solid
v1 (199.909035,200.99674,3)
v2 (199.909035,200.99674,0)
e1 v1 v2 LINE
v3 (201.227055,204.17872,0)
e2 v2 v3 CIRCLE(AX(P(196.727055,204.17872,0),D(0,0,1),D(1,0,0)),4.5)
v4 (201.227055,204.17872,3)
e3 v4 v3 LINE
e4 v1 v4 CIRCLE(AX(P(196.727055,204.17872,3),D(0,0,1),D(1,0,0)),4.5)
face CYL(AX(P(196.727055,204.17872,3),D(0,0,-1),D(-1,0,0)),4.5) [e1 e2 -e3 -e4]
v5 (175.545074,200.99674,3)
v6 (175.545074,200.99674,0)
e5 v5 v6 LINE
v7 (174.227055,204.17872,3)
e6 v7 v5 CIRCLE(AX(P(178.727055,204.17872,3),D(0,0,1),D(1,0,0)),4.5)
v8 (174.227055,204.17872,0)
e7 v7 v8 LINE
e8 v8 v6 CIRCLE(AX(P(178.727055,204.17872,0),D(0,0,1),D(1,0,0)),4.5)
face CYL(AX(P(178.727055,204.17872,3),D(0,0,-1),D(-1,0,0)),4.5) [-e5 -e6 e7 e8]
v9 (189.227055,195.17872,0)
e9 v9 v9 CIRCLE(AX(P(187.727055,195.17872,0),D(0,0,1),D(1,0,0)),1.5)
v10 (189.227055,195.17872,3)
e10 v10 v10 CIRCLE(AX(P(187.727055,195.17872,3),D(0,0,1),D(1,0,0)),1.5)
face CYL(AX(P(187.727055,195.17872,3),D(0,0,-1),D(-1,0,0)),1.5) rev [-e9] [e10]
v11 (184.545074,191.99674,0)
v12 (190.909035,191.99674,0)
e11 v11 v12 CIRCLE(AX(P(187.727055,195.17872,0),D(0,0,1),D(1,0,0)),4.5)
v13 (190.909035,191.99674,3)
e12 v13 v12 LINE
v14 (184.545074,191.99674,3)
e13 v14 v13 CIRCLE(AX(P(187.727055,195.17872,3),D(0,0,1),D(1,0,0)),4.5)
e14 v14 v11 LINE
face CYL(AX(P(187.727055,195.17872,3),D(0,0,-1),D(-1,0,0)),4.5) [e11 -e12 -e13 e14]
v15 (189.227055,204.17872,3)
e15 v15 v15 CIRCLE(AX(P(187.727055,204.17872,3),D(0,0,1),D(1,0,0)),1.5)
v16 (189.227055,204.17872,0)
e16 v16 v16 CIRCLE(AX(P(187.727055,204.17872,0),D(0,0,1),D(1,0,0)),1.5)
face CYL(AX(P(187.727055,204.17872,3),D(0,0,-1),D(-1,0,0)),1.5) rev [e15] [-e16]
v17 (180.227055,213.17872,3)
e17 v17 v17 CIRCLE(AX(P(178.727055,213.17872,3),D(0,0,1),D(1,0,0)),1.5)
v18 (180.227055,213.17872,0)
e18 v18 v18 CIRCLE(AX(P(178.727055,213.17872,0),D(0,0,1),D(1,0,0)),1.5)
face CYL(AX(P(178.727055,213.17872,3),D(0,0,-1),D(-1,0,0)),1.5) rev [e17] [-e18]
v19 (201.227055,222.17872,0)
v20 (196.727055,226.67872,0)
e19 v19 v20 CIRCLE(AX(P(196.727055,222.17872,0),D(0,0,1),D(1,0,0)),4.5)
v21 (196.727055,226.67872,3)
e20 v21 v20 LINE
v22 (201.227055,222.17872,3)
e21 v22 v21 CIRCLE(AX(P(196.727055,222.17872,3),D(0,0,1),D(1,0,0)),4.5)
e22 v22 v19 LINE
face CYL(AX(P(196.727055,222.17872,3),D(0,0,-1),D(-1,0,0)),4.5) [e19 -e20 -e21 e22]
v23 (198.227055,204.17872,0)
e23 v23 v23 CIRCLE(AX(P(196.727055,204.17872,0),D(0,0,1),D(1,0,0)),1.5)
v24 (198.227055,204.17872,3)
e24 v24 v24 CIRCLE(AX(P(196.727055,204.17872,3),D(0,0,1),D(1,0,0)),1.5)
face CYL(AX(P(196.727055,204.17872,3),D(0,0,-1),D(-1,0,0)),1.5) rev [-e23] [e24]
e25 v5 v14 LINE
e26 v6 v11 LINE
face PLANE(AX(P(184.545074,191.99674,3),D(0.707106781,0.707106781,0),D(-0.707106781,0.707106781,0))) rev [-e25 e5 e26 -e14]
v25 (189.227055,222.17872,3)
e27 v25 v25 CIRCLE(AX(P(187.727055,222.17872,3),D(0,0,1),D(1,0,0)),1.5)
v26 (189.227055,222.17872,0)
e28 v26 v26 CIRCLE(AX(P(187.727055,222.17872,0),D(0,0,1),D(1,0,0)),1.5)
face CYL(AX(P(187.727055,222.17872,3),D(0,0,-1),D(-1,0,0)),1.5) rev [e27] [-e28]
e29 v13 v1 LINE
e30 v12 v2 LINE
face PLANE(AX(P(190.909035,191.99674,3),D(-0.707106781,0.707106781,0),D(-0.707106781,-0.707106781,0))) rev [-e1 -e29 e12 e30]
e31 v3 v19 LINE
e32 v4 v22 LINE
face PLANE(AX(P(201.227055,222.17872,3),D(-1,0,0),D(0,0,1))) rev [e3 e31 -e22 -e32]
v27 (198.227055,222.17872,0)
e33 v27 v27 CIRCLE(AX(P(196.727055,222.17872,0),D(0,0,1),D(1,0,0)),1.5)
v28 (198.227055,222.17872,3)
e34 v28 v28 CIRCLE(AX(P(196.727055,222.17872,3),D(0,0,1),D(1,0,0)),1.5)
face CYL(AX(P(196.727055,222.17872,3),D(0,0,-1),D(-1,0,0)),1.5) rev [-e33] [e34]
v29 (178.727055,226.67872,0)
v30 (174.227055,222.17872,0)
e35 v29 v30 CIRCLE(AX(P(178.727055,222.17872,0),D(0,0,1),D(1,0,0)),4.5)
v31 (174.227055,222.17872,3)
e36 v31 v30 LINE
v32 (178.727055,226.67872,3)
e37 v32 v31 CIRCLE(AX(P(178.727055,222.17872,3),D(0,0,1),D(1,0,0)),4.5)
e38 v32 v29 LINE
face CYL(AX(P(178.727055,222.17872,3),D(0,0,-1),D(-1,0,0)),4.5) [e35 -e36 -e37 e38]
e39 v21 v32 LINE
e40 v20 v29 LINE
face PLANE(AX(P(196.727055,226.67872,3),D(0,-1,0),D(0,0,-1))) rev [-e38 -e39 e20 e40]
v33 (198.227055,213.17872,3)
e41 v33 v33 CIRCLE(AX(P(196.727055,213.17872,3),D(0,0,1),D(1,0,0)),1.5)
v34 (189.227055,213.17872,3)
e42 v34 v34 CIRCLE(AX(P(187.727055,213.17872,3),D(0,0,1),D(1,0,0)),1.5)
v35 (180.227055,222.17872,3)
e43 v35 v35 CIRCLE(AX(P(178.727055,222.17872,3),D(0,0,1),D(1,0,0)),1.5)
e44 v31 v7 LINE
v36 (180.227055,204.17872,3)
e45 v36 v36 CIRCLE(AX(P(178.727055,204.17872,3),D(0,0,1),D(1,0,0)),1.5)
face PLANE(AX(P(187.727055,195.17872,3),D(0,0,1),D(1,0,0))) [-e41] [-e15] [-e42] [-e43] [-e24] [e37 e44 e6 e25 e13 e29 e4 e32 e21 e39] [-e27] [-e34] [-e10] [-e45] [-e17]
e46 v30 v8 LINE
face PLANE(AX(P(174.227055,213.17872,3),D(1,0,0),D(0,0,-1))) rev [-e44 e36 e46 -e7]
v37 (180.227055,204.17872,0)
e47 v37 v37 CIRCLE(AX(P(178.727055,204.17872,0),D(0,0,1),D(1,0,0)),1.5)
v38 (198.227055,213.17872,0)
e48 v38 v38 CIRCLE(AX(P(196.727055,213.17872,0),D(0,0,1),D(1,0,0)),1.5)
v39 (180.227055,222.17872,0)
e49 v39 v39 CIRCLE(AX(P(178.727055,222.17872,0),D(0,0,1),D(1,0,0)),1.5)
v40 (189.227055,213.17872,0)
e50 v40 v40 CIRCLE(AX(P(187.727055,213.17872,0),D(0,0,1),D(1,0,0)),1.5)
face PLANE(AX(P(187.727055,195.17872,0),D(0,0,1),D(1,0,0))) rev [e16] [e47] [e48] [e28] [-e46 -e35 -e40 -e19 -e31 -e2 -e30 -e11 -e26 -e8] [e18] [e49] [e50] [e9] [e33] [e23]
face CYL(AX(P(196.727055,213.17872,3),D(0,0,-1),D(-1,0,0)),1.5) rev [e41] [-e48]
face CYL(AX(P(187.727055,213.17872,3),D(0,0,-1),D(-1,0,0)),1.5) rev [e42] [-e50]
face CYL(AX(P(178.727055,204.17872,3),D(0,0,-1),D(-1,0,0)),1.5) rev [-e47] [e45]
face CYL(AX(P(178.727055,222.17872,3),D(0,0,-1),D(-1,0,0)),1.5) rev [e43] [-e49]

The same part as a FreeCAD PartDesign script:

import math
import FreeCAD as App
import Part
import Sketcher
from FreeCAD import Vector

doc = App.newDocument("Part")
body = doc.addObject("PartDesign::Body", "Body")

sketch1 = doc.addObject("Sketcher::SketchObject", "Sketch")
body.addObject(sketch1)
sketch1.AttachmentSupport = (doc.XY_Plane, [""])
sketch1.MapMode = "FlatFace"
sketch1.addGeometry(Part.ArcOfCircle(Part.Circle(Vector(178.7, 204.2, 0), Vector(0, 0, 1), 4.5), math.radians(180), math.radians(225)), False)
sketch1.addGeometry(Part.LineSegment(Vector(175.5, 201, 0), Vector(184.5, 192, 0)), False)
sketch1.addGeometry(Part.ArcOfCircle(Part.Circle(Vector(187.7, 195.2, 0), Vector(0, 0, 1), 4.5), math.radians(-135), math.radians(-45)), False)
sketch1.addGeometry(Part.LineSegment(Vector(190.9, 192, 0), Vector(199.9, 201, 0)), False)
sketch1.addGeometry(Part.ArcOfCircle(Part.Circle(Vector(196.7, 204.2, 0), Vector(0, 0, 1), 4.5), math.radians(-45), math.radians(0)), False)
sketch1.addGeometry(Part.LineSegment(Vector(201.2, 204.2, 0), Vector(201.2, 222.2, 0)), False)
sketch1.addGeometry(Part.ArcOfCircle(Part.Circle(Vector(196.7, 222.2, 0), Vector(0, 0, 1), 4.5), math.radians(0), math.radians(90)), False)
sketch1.addGeometry(Part.LineSegment(Vector(196.7, 226.7, 0), Vector(178.7, 226.7, 0)), False)
sketch1.addGeometry(Part.ArcOfCircle(Part.Circle(Vector(178.7, 222.2, 0), Vector(0, 0, 1), 4.5), math.radians(90), math.radians(180)), False)
sketch1.addGeometry(Part.LineSegment(Vector(174.2, 222.2, 0), Vector(174.2, 204.2, 0)), False)
sketch1.addGeometry(Part.Circle(Vector(178.7, 204.2, 0), Vector(0, 0, 1), 1.5), False)
sketch1.addGeometry(Part.Circle(Vector(187.7, 195.2, 0), Vector(0, 0, 1), 1.5), False)
sketch1.addGeometry(Part.Circle(Vector(187.7, 204.2, 0), Vector(0, 0, 1), 1.5), False)
sketch1.addGeometry(Part.Circle(Vector(196.7, 204.2, 0), Vector(0, 0, 1), 1.5), False)
sketch1.addGeometry(Part.Circle(Vector(178.7, 213.2, 0), Vector(0, 0, 1), 1.5), False)
sketch1.addGeometry(Part.Circle(Vector(178.7, 222.2, 0), Vector(0, 0, 1), 1.5), False)
sketch1.addGeometry(Part.Circle(Vector(187.7, 213.2, 0), Vector(0, 0, 1), 1.5), False)
sketch1.addGeometry(Part.Circle(Vector(196.7, 213.2, 0), Vector(0, 0, 1), 1.5), False)
sketch1.addGeometry(Part.Circle(Vector(187.7, 222.2, 0), Vector(0, 0, 1), 1.5), False)
sketch1.addGeometry(Part.Circle(Vector(196.7, 222.2, 0), Vector(0, 0, 1), 1.5), False)
sketch1.addConstraint(Sketcher.Constraint("Tangent", 0, 2, 1, 1))
sketch1.addConstraint(Sketcher.Constraint("Tangent", 1, 2, 2, 1))
sketch1.addConstraint(Sketcher.Constraint("Tangent", 2, 2, 3, 1))
sketch1.addConstraint(Sketcher.Constraint("Tangent", 3, 2, 4, 1))
sketch1.addConstraint(Sketcher.Constraint("Tangent", 4, 2, 5, 1))
sketch1.addConstraint(Sketcher.Constraint("Tangent", 5, 2, 6, 1))
sketch1.addConstraint(Sketcher.Constraint("Tangent", 6, 2, 7, 1))
sketch1.addConstraint(Sketcher.Constraint("Tangent", 7, 2, 8, 1))
sketch1.addConstraint(Sketcher.Constraint("Tangent", 8, 2, 9, 1))
sketch1.addConstraint(Sketcher.Constraint("Tangent", 9, 2, 0, 1))
sketch1.addConstraint(Sketcher.Constraint("Vertical", 5))
sketch1.addConstraint(Sketcher.Constraint("Horizontal", 7))
sketch1.addConstraint(Sketcher.Constraint("Vertical", 9))
sketch1.addConstraint(Sketcher.Constraint("Coincident", 10, 3, 0, 3))
sketch1.addConstraint(Sketcher.Constraint("Coincident", 11, 3, 2, 3))
sketch1.addConstraint(Sketcher.Constraint("Coincident", 13, 3, 4, 3))
sketch1.addConstraint(Sketcher.Constraint("Coincident", 15, 3, 8, 3))
sketch1.addConstraint(Sketcher.Constraint("Coincident", 19, 3, 6, 3))
sketch1.addConstraint(Sketcher.Constraint("Equal", 0, 2))
sketch1.addConstraint(Sketcher.Constraint("Equal", 2, 4))
sketch1.addConstraint(Sketcher.Constraint("Equal", 4, 6))
sketch1.addConstraint(Sketcher.Constraint("Equal", 6, 8))
sketch1.addConstraint(Sketcher.Constraint("Equal", 10, 11))
sketch1.addConstraint(Sketcher.Constraint("Equal", 11, 12))
sketch1.addConstraint(Sketcher.Constraint("Equal", 12, 13))
sketch1.addConstraint(Sketcher.Constraint("Equal", 13, 14))
sketch1.addConstraint(Sketcher.Constraint("Equal", 14, 15))
sketch1.addConstraint(Sketcher.Constraint("Equal", 15, 16))
sketch1.addConstraint(Sketcher.Constraint("Equal", 16, 17))
sketch1.addConstraint(Sketcher.Constraint("Equal", 17, 18))
sketch1.addConstraint(Sketcher.Constraint("Equal", 18, 19))
sketch1.addConstraint(Sketcher.Constraint("Perpendicular", 1, 3))
sketch1.addConstraint(Sketcher.Constraint("Horizontal", 0, 3, 4, 3))
sketch1.addConstraint(Sketcher.Constraint("Horizontal", 10, 3, 12, 3))
sketch1.addConstraint(Sketcher.Constraint("Horizontal", 14, 3, 16, 3))
sketch1.addConstraint(Sketcher.Constraint("Horizontal", 16, 3, 17, 3))
sketch1.addConstraint(Sketcher.Constraint("Horizontal", 15, 3, 18, 3))
sketch1.addConstraint(Sketcher.Constraint("Horizontal", 1, 2, 2, 2))
sketch1.addConstraint(Sketcher.Constraint("Vertical", 11, 3, 12, 3))
sketch1.addConstraint(Sketcher.Constraint("Vertical", 10, 3, 14, 3))
sketch1.addConstraint(Sketcher.Constraint("Vertical", 12, 3, 16, 3))
sketch1.addConstraint(Sketcher.Constraint("Vertical", 13, 3, 17, 3))
sketch1.addConstraint(Sketcher.Constraint("Vertical", 16, 3, 18, 3))
sketch1.addConstraint(Sketcher.Constraint("Equal", 7, 5))
sketch1.addConstraint(Sketcher.Constraint("Diameter", 10, 3.0))
sketch1.addConstraint(Sketcher.Constraint("Radius", 0, 4.5))
sketch1.addConstraint(Sketcher.Constraint("DistanceX", 7, 2, 7, 1, 18.0))
sketch1.addConstraint(Sketcher.Constraint("DistanceY", 10, 3, 14, 3, 9.0))
sketch1.addConstraint(Sketcher.Constraint("DistanceY", -1, 1, 0, 3, 204.17872))
sketch1.addConstraint(Sketcher.Constraint("DistanceX", -1, 1, 0, 3, 178.727055))
pad1 = doc.addObject("PartDesign::Pad", "Pad")
body.addObject(pad1)
pad1.Profile = sketch1
pad1.Length = 3

doc.recompute()
